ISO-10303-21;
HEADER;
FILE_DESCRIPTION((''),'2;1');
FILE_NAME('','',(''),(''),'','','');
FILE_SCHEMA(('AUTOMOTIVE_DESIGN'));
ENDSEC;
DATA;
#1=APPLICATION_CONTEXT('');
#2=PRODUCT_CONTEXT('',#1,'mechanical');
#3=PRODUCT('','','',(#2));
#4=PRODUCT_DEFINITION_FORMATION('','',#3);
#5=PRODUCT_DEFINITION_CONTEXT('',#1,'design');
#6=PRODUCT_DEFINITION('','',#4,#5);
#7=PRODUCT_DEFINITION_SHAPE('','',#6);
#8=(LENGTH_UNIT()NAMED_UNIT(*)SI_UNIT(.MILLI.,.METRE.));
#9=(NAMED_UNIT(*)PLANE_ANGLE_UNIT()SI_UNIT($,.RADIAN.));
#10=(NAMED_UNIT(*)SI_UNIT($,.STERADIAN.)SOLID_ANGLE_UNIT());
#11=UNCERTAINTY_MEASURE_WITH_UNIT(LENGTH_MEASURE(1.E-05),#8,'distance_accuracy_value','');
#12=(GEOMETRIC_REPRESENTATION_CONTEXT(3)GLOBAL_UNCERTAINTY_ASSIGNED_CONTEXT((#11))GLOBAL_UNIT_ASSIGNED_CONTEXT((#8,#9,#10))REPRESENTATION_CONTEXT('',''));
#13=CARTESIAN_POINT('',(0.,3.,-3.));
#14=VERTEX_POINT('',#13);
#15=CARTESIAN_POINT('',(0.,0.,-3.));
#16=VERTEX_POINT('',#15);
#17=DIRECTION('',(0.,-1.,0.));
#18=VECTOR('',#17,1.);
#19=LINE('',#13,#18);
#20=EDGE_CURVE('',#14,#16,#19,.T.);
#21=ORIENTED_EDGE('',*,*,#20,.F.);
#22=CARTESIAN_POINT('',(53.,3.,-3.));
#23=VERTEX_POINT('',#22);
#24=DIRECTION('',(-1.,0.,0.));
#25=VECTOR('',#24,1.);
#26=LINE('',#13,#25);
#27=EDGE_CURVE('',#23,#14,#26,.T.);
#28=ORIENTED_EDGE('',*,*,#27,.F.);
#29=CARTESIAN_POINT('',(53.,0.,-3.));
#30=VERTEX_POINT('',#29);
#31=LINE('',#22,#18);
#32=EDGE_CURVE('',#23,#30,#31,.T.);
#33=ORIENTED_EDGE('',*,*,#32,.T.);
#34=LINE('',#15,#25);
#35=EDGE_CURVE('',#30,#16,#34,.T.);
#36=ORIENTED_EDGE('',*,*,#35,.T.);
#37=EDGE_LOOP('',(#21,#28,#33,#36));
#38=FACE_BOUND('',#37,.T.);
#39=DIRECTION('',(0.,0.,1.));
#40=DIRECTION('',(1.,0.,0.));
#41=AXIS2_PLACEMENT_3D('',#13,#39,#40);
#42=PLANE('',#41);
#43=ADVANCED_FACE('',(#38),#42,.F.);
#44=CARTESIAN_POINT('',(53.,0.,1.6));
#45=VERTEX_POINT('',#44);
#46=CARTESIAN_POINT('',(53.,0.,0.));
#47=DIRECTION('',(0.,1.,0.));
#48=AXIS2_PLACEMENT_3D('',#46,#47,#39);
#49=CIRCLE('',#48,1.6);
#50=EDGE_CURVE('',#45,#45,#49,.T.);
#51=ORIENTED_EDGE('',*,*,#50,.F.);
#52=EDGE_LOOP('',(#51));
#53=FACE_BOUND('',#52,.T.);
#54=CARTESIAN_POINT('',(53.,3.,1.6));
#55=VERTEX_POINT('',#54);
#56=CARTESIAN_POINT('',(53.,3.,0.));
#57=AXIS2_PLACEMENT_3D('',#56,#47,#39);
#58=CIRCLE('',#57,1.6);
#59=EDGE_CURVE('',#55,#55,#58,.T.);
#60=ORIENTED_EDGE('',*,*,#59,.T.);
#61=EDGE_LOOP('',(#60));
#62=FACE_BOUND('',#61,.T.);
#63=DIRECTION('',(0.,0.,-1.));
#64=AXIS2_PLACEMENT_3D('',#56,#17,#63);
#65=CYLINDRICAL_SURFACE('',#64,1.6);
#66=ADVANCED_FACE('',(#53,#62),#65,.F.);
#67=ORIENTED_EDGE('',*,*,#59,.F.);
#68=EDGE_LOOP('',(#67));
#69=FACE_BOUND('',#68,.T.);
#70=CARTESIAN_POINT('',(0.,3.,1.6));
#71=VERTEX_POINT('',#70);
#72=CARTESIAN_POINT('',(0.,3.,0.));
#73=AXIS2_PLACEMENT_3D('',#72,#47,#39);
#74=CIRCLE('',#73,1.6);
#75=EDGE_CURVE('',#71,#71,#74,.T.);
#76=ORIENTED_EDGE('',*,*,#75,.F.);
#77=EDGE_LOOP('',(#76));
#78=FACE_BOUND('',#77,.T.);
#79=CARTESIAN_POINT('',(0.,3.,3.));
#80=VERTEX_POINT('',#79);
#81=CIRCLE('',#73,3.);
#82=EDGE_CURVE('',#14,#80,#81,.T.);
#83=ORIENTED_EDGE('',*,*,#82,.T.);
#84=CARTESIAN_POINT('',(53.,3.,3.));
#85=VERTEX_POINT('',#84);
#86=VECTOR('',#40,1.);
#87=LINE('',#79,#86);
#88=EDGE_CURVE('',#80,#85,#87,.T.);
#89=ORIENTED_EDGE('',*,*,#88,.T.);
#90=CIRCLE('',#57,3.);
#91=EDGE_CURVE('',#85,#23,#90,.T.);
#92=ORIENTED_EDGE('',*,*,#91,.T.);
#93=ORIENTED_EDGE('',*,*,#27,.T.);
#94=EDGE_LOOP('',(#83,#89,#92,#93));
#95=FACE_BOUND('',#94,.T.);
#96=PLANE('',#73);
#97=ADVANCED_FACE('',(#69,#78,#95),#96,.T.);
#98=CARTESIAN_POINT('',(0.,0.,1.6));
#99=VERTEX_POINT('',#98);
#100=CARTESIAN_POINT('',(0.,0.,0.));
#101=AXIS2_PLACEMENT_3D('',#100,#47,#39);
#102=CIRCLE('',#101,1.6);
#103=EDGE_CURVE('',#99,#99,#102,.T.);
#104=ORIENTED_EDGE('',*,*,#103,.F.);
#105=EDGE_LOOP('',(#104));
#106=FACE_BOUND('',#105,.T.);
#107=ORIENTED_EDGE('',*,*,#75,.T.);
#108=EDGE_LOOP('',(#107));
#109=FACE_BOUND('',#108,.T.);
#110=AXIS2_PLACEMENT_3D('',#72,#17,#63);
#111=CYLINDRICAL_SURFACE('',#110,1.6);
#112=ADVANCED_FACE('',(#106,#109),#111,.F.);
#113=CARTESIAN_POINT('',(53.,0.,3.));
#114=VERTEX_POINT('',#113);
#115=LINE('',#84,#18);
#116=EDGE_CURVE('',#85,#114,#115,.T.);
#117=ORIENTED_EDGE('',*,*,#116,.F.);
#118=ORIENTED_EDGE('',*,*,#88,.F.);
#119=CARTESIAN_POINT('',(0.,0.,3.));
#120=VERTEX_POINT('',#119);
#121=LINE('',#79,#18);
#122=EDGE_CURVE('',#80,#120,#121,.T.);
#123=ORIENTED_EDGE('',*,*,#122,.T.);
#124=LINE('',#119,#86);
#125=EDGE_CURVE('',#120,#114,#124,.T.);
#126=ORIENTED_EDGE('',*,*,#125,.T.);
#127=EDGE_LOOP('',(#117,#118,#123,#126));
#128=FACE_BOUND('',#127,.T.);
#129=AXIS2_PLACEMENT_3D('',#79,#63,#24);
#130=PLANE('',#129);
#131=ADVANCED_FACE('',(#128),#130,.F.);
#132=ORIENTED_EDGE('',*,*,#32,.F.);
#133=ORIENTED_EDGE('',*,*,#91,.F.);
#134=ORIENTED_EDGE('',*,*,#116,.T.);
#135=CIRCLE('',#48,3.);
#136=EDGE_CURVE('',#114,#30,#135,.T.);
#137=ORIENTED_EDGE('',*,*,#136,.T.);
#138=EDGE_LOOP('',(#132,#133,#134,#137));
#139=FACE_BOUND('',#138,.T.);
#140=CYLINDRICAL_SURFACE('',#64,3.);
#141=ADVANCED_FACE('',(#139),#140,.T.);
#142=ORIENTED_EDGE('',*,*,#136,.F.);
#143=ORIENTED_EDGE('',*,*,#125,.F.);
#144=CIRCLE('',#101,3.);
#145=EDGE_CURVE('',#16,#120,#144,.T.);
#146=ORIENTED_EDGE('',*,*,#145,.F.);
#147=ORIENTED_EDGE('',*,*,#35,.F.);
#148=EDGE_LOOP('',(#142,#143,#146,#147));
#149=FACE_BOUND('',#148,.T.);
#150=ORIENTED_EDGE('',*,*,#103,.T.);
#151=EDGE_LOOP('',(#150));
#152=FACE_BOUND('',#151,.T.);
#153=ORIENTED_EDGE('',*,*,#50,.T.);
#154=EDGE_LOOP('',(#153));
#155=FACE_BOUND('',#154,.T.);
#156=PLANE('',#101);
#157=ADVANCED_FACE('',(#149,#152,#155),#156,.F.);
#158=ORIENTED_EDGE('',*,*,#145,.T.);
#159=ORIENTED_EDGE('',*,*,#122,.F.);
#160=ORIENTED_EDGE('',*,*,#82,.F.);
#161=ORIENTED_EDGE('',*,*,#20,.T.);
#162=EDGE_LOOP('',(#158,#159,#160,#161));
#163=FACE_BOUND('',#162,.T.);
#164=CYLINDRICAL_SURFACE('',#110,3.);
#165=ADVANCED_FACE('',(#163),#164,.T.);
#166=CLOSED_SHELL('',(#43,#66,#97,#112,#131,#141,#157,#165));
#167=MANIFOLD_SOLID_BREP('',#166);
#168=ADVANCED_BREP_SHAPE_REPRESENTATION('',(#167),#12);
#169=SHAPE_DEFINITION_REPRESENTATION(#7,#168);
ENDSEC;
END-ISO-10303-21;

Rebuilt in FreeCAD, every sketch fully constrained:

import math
import FreeCAD as App
import Part
import Sketcher

V = App.Vector
Q = App.Units.Quantity

doc = App.newDocument("Part")
body = doc.addObject("PartDesign::Body", "Body")

sketch1 = doc.addObject("Sketcher::SketchObject", "Sketch")
body.addObject(sketch1)
sketch1.AttachmentSupport = (doc.XZ_Plane, [""])
sketch1.MapMode = "FlatFace"
sketch1.addGeometry([
    Part.LineSegment(V(53, -3, 0), V(0, -3, 0)),
    Part.ArcOfCircle(Part.Circle(V(0, 0, 0), V(0, 0, 1), 3), math.radians(90), math.radians(270)),
    Part.LineSegment(V(0, 3, 0), V(53, 3, 0)),
    Part.ArcOfCircle(Part.Circle(V(53, 0, 0), V(0, 0, 1), 3), math.radians(-90), math.radians(90)),
    Part.Circle(V(53, 0, 0), V(0, 0, 1), 1.6),
    Part.Circle(V(0, 0, 0), V(0, 0, 1), 1.6),
], False)
sketch1.addConstraint([
    Sketcher.Constraint("Tangent", 0, 2, 1, 2),
    Sketcher.Constraint("Tangent", 1, 1, 2, 1),
    Sketcher.Constraint("Tangent", 2, 2, 3, 2),
    Sketcher.Constraint("Tangent", 3, 1, 0, 1),
    Sketcher.Constraint("Horizontal", 0),
    Sketcher.Constraint("Horizontal", 2),
    Sketcher.Constraint("Coincident", 1, 3, -1, 1),
    Sketcher.Constraint("Coincident", 5, 3, -1, 1),
    Sketcher.Constraint("Coincident", 4, 3, 3, 3),
    Sketcher.Constraint("Equal", 4, 5),
    Sketcher.Constraint("Radius", 1, Q("3 mm")),
    Sketcher.Constraint("Diameter", 4, Q("3.2 mm")),
    Sketcher.Constraint("DistanceX", 0, 2, 0, 1, Q("53 mm")),
])
pad1 = doc.addObject("PartDesign::Pad", "Pad")
body.addObject(pad1)
pad1.Profile = sketch1
pad1.Length = 3
pad1.Reversed = True

doc.recompute()
